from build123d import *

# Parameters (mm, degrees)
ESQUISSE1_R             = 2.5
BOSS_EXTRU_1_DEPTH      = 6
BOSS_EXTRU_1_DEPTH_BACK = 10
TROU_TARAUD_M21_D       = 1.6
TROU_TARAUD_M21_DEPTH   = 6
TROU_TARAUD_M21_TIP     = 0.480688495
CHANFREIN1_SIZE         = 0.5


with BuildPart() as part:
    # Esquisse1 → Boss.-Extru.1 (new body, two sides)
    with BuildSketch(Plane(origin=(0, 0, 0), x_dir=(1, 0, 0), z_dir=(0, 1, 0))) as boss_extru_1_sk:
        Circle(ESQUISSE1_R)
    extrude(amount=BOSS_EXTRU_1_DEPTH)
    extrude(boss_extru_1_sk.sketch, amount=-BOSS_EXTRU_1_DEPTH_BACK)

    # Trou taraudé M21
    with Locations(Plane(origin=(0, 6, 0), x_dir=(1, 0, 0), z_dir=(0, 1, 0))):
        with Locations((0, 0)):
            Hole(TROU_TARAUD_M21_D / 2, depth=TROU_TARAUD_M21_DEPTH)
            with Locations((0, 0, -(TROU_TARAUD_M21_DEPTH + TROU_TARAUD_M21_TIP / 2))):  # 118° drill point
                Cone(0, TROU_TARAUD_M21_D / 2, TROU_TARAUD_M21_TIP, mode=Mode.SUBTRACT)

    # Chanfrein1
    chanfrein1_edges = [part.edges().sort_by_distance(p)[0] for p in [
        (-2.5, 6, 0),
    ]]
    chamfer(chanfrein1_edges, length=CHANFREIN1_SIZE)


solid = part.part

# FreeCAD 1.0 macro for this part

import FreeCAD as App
import Part
import Sketcher
Q = App.Units.Quantity


def edges_at(feature, points):
    """Names of the edges that pass closest to the given points."""
    edges = feature.Shape.Edges
    near = lambda p: min(range(len(edges)), key=lambda i: edges[i].distToShape(Part.Vertex(*p))[0])
    return sorted({f"Edge{near(p) + 1}" for p in points})

doc = App.newDocument("Part")
body = doc.addObject("PartDesign::Body", "Body")

# Sketch on XZ plane
sketch1 = body.newObject("Sketcher::SketchObject", "Sketch")
sketch1.AttachmentSupport = (doc.getObject("XZ_Plane"), [""])
sketch1.MapMode = "FlatFace"
sketch1.addGeometry(Part.Circle(App.Vector(0, 0, 0), App.Vector(0, 0, 1), 2.5), False)
sketch1.addConstraint([
    Sketcher.Constraint("Coincident", 0, 3, -1, 1),
    Sketcher.Constraint("Diameter", 0, Q("5 mm")),
])
pad1 = body.newObject("PartDesign::Pad", "Pad")
pad1.Profile = sketch1
pad1.Type = "TwoLengths"
pad1.Length = 6
pad1.Length2 = 10
pad1.Reversed = True

# Sketch on XZ plane
sketch2 = body.newObject("Sketcher::SketchObject", "Sketch001")
sketch2.AttachmentSupport = (doc.getObject("XZ_Plane"), [""])
sketch2.MapMode = "FlatFace"
sketch2.AttachmentOffset = App.Placement(App.Vector(0, 0, -6), App.Rotation())
sketch2.addGeometry(Part.Circle(App.Vector(0, 0, 0), App.Vector(0, 0, 1), 0.8), False)
sketch2.addConstraint([
    Sketcher.Constraint("Coincident", 0, 3, -1, 1),
    Sketcher.Constraint("Diameter", 0, Q("1.6 mm")),
])
doc.recompute()
hole = body.newObject("PartDesign::Hole", "Hole")
hole.Profile = sketch2
hole.ThreadType = "None"
hole.Diameter = 1.6
hole.DepthType = "Dimension"
hole.Depth = 6
hole.DrillPoint = "Angled"
hole.DrillPointAngle = 118
hole.Reversed = True
doc.recompute()

chamfer = body.newObject("PartDesign::Chamfer", "Chamfer")
chamfer.Base = (hole, edges_at(hole, [(-2.5, 6, 0)]))
chamfer.Size = 0.5

doc.recompute()
